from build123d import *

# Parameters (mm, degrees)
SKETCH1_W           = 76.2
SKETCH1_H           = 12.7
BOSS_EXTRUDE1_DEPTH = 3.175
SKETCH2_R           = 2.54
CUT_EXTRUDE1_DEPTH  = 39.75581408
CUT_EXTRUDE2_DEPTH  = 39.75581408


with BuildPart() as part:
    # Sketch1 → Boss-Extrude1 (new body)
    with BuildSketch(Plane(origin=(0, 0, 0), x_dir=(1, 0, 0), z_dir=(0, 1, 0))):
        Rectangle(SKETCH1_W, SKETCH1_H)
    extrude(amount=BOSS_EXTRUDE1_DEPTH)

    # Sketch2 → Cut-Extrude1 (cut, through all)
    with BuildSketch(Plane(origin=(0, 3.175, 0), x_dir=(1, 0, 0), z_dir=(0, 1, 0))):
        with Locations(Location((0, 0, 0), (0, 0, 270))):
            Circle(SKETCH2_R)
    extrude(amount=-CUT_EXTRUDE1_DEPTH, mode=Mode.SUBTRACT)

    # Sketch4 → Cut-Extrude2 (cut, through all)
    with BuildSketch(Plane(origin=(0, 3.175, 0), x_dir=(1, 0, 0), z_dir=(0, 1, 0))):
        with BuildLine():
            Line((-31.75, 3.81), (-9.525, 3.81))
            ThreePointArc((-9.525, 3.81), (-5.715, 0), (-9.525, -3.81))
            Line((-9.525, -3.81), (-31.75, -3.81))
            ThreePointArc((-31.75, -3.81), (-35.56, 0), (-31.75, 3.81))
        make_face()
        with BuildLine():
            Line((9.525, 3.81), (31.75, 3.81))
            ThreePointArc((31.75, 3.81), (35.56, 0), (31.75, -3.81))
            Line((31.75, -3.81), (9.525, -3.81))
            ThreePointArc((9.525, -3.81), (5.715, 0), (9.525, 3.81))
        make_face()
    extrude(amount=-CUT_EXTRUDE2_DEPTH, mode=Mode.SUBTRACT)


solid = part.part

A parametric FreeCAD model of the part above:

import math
import FreeCAD as App
import Part
import Sketcher

V = App.Vector
Q = App.Units.Quantity

doc = App.newDocument("Part")
body = doc.addObject("PartDesign::Body", "Body")

# Sketch on XZ plane
sketch1 = body.newObject("Sketcher::SketchObject", "Sketch")
sketch1.AttachmentSupport = (doc.getObject("XZ_Plane"), [""])
sketch1.MapMode = "FlatFace"
sketch1.addGeometry(Part.LineSegment(V(-38, -6, 0), V(-38, 6, 0)), False)
sketch1.addGeometry(Part.LineSegment(V(-38, 6, 0), V(38, 6, 0)), False)
sketch1.addGeometry(Part.LineSegment(V(38, 6, 0), V(38, -6, 0)), False)
sketch1.addGeometry(Part.LineSegment(V(38, -6, 0), V(-38, -6, 0)), False)
sketch1.addConstraint(Sketcher.Constraint("Coincident", 0, 2, 1, 1))
sketch1.addConstraint(Sketcher.Constraint("Coincident", 1, 2, 2, 1))
sketch1.addConstraint(Sketcher.Constraint("Coincident", 2, 2, 3, 1))
sketch1.addConstraint(Sketcher.Constraint("Coincident", 3, 2, 0, 1))
sketch1.addConstraint(Sketcher.Constraint("Vertical", 0))
sketch1.addConstraint(Sketcher.Constraint("Horizontal", 1))
sketch1.addConstraint(Sketcher.Constraint("Vertical", 2))
sketch1.addConstraint(Sketcher.Constraint("Horizontal", 3))
sketch1.addConstraint(Sketcher.Constraint("Symmetric", 0, 2, 2, 2, -1, 1))
sketch1.addConstraint(Sketcher.Constraint("DistanceX", 1, 1, 1, 2, Q("3 in")))
sketch1.addConstraint(Sketcher.Constraint("DistanceY", 0, 1, 0, 2, Q("0.5 in")))
pad1 = body.newObject("PartDesign::Pad", "Pad")
pad1.Profile = sketch1
pad1.Length = Q("0.125 in")
pad1.Reversed = True

# Sketch on XZ plane
sketch2 = body.newObject("Sketcher::SketchObject", "Sketch001")
sketch2.AttachmentSupport = (doc.getObject("XZ_Plane"), [""])
sketch2.MapMode = "FlatFace"
sketch2.AttachmentOffset = App.Placement(V(0, 0, -0.125 * 25.4), App.Rotation())
sketch2.addGeometry(Part.Circle(V(0, 0, 0), V(0, 0, 1), 2.5), False)
sketch2.addConstraint(Sketcher.Constraint("Coincident", 0, 3, -1, 1))
sketch2.addConstraint(Sketcher.Constraint("Diameter", 0, Q("0.2 in")))
pocket1 = body.newObject("PartDesign::Pocket", "Pocket")
pocket1.Profile = sketch2
pocket1.Type = "ThroughAll"
pocket1.Reversed = True

# Sketch on XZ plane
sketch3 = body.newObject("Sketcher::SketchObject", "Sketch002")
sketch3.AttachmentSupport = (doc.getObject("XZ_Plane"), [""])
sketch3.MapMode = "FlatFace"
sketch3.AttachmentOffset = App.Placement(V(0, 0, -0.125 * 25.4), App.Rotation())
sketch3.addGeometry(Part.LineSegment(V(-9.5, -3.8, 0), V(-31.8, -3.8, 0)), False)
sketch3.addGeometry(Part.ArcOfCircle(Part.Circle(V(-31.8, 0, 0), V(0, 0, 1), 3.8), math.radians(90), math.radians(270)), False)
sketch3.addGeometry(Part.LineSegment(V(-31.8, 3.8, 0), V(-9.5, 3.8, 0)), False)
sketch3.addGeometry(Part.ArcOfCircle(Part.Circle(V(-9.5, 0, 0), V(0, 0, 1), 3.8), math.radians(-90), math.radians(90)), False)
sketch3.addGeometry(Part.LineSegment(V(31.8, -3.8, 0), V(9.5, -3.8, 0)), False)
sketch3.addGeometry(Part.ArcOfCircle(Part.Circle(V(9.5, 0, 0), V(0, 0, 1), 3.8), math.radians(90), math.radians(270)), False)
sketch3.addGeometry(Part.LineSegment(V(9.5, 3.8, 0), V(31.8, 3.8, 0)), False)
sketch3.addGeometry(Part.ArcOfCircle(Part.Circle(V(31.8, 0, 0), V(0, 0, 1), 3.8), math.radians(-90), math.radians(90)), False)
sketch3.addConstraint(Sketcher.Constraint("Tangent", 0, 2, 1, 2))
sketch3.addConstraint(Sketcher.Constraint("Tangent", 1, 1, 2, 1))
sketch3.addConstraint(Sketcher.Constraint("Tangent", 2, 2, 3, 2))
sketch3.addConstraint(Sketcher.Constraint("Tangent", 3, 1, 0, 1))
sketch3.addConstraint(Sketcher.Constraint("Tangent", 4, 2, 5, 2))
sketch3.addConstraint(Sketcher.Constraint("Tangent", 5, 1, 6, 1))
sketch3.addConstraint(Sketcher.Constraint("Tangent", 6, 2, 7, 2))
sketch3.addConstraint(Sketcher.Constraint("Tangent", 7, 1, 4, 1))
sketch3.addConstraint(Sketcher.Constraint("Horizontal", 0))
sketch3.addConstraint(Sketcher.Constraint("Horizontal", 2))
sketch3.addConstraint(Sketcher.Constraint("Horizontal", 4))
sketch3.addConstraint(Sketcher.Constraint("Horizontal", 6))
sketch3.addConstraint(Sketcher.Constraint("Equal", 3, 5))
sketch3.addConstraint(Sketcher.Constraint("Symmetric", 3, 3, 5, 3, -1, 1))
sketch3.addConstraint(Sketcher.Constraint("Symmetric", 1, 3, 7, 3, -2))
sketch3.addConstraint(Sketcher.Constraint("Radius", 1, Q("0.15 in")))
sketch3.addConstraint(Sketcher.Constraint("DistanceX", 1, 3, 7, 3, Q("2.5 in")))
sketch3.addConstraint(Sketcher.Constraint("DistanceX", 0, 2, 0, 1, Q("0.875 in")))
pocket2 = body.newObject("PartDesign::Pocket", "Pocket001")
pocket2.Profile = sketch3
pocket2.Type = "ThroughAll"
pocket2.Reversed = True

doc.recompute()
